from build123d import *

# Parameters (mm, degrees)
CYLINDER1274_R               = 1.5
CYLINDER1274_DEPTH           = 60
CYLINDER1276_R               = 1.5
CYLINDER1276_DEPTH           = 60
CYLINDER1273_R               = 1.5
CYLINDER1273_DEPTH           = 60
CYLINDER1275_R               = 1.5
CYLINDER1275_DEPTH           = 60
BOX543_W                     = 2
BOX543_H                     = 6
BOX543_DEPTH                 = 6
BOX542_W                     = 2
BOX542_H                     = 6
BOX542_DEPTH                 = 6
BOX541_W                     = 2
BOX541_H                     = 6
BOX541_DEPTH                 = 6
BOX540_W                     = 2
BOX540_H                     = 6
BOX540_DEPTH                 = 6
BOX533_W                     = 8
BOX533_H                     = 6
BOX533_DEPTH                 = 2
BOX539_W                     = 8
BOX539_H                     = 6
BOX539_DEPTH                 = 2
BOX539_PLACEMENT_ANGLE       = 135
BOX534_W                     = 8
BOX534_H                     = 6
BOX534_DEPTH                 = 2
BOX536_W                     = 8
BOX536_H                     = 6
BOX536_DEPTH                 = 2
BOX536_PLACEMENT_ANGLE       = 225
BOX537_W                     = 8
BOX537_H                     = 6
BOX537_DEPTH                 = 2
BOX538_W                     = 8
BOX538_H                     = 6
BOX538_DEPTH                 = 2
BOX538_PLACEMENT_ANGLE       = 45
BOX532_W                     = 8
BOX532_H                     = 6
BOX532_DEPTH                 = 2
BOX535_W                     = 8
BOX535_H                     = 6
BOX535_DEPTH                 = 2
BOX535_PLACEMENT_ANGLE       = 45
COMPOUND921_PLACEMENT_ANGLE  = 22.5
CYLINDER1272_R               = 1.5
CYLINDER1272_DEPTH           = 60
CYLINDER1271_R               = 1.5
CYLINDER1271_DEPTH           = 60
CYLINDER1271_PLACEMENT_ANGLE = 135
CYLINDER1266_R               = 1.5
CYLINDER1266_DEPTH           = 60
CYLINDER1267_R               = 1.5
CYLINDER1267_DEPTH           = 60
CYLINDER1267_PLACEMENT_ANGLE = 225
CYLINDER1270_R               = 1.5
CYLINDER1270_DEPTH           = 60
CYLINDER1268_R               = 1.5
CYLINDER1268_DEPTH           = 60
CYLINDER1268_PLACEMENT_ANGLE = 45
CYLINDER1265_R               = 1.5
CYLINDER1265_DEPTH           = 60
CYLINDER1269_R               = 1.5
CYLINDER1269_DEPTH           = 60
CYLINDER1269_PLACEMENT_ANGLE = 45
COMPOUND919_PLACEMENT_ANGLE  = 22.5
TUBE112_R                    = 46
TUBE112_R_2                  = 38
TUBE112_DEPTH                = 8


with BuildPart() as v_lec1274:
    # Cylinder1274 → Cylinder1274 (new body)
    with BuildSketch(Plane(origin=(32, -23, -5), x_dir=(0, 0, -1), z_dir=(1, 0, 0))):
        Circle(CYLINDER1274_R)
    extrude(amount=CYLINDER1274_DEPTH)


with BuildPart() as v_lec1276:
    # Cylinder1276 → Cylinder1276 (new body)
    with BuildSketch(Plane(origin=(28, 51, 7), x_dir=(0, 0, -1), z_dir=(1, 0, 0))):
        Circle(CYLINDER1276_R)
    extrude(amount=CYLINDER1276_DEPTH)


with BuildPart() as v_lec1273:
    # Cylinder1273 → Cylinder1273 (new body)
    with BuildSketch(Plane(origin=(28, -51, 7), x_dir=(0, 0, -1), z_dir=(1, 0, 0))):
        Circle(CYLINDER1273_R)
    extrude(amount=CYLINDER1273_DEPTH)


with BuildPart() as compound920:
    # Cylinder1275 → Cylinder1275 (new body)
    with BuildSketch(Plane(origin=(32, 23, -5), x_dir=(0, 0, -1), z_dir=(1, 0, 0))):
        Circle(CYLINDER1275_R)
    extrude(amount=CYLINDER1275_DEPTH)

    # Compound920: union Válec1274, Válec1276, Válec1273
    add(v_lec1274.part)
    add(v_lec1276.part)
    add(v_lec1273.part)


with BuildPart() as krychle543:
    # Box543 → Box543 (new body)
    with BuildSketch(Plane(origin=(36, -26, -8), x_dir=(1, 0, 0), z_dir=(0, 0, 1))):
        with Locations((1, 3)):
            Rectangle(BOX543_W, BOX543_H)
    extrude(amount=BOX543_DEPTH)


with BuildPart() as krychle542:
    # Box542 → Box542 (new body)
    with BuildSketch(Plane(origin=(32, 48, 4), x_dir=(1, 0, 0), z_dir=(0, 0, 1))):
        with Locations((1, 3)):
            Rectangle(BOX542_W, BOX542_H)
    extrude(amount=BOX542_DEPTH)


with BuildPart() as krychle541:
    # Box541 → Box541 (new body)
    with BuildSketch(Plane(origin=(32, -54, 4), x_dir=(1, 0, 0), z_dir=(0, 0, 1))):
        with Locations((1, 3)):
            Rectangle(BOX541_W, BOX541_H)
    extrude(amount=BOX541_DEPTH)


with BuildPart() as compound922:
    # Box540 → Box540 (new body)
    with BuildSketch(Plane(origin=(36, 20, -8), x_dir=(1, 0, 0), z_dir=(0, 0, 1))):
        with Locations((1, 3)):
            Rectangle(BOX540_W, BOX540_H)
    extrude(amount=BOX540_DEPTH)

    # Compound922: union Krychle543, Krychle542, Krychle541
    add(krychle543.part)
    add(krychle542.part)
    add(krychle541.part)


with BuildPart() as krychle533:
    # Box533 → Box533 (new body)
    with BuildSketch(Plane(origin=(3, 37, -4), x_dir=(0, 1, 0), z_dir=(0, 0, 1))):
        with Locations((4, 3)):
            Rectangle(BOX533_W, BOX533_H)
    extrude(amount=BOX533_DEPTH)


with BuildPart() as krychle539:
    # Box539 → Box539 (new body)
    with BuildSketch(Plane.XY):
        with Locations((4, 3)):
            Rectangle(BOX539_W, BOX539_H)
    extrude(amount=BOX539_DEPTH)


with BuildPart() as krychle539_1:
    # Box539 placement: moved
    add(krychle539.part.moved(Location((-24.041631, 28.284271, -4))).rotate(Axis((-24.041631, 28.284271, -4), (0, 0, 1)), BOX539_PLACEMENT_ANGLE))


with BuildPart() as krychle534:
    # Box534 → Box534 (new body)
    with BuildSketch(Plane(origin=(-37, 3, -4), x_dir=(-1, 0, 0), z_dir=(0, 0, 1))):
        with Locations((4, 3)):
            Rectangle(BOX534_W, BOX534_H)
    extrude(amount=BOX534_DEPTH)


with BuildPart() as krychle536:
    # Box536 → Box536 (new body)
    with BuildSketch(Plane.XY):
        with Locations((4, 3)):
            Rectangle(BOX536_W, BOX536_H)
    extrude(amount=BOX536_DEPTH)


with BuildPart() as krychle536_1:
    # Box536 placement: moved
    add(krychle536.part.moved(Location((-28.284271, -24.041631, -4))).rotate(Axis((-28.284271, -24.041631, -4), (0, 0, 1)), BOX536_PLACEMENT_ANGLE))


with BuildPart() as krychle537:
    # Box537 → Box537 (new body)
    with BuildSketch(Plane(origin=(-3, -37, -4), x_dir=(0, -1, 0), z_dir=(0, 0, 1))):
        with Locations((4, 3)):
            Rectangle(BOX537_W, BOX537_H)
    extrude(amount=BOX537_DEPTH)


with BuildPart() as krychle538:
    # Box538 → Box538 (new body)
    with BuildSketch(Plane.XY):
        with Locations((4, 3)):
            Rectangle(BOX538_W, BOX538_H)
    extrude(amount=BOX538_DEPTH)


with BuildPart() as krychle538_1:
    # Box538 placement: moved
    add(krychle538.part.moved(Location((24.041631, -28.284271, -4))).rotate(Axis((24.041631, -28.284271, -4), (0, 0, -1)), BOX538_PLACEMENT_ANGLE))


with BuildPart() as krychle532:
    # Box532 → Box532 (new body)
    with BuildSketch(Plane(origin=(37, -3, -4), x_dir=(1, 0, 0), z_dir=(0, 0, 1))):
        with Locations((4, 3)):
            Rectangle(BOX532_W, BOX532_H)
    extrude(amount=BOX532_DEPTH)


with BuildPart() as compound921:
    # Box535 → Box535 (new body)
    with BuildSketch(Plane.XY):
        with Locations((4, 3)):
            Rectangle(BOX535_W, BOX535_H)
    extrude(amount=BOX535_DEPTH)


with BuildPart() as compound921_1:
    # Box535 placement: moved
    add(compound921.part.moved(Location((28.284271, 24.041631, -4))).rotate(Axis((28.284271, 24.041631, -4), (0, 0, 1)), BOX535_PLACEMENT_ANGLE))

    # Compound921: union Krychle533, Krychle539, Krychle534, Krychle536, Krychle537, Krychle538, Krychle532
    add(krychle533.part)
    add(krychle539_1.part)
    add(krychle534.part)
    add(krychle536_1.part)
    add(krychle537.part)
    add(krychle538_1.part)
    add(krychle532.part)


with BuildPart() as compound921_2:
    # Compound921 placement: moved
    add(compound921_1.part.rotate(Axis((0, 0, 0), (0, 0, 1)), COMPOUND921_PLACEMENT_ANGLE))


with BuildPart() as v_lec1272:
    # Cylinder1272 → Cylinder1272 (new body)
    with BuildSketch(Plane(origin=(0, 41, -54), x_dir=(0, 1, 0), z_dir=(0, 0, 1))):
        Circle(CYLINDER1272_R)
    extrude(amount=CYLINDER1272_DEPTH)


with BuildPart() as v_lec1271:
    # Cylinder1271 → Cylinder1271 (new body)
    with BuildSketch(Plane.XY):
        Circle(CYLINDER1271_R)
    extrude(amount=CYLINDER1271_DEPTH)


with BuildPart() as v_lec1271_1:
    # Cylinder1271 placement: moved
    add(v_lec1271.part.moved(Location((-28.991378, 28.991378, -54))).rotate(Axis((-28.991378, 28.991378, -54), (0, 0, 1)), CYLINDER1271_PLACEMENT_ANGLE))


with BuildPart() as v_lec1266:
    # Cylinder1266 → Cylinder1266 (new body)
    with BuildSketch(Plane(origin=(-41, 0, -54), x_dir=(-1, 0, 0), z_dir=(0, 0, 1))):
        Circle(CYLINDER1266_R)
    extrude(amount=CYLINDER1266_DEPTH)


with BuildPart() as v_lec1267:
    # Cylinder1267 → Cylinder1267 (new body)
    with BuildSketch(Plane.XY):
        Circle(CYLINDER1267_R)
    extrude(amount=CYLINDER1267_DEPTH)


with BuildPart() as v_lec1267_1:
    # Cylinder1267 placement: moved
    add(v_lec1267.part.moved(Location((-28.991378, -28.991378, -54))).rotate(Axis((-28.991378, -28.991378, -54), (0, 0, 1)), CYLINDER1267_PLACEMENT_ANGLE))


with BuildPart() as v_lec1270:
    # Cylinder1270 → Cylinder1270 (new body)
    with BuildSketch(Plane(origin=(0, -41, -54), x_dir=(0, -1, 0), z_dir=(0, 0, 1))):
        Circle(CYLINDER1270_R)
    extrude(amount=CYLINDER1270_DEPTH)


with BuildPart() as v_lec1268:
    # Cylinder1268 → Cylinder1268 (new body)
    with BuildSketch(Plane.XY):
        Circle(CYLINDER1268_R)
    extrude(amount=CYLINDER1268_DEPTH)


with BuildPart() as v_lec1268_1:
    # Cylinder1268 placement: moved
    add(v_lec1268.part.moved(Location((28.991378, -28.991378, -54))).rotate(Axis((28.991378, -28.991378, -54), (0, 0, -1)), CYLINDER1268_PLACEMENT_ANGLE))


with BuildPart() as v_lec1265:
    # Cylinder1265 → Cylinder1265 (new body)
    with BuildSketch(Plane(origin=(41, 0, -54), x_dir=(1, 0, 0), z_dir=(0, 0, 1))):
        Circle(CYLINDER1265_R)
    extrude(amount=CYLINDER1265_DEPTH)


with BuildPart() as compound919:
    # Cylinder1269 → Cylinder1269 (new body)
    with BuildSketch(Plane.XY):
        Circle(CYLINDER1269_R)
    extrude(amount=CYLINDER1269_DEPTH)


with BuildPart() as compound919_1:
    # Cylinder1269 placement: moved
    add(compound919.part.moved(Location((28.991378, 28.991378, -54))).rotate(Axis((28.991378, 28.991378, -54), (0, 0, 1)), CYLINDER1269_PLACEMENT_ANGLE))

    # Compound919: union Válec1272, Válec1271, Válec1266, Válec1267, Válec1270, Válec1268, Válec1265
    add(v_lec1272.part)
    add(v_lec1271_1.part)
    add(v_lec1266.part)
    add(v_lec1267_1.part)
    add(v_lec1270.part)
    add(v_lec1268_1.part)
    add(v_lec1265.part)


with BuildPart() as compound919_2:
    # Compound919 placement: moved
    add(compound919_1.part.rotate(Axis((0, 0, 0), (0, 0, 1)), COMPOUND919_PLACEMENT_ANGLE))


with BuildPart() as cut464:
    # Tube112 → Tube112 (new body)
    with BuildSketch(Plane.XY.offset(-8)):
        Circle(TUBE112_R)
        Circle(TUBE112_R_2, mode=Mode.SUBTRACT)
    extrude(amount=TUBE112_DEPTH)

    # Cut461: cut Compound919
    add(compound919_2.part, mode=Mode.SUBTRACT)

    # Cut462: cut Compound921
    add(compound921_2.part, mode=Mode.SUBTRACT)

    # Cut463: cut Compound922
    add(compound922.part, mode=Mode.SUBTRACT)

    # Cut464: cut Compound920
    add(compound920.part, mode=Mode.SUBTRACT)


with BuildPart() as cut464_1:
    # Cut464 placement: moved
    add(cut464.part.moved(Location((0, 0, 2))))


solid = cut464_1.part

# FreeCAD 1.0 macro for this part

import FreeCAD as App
import Part
import Sketcher


def add_polygon(sketch, points):
    """Adds a closed chain of lines whose ends are joined by coincident constraints."""
    first, n = sketch.GeometryCount, len(points)
    for a, b in zip(points, points[1:] + points[:1]):
        sketch.addGeometry(Part.LineSegment(App.Vector(*a, 0), App.Vector(*b, 0)), False)
    for i in range(n):
        sketch.addConstraint(Sketcher.Constraint("Coincident", first + i, 2, first + (i + 1) % n, 1))

doc = App.newDocument("Part")
params = doc.addObject("Spreadsheet::Sheet", "Params")
for row, (alias, value) in enumerate([
    ("sketch1_diameter", "3 mm"),
    ("pad1_length", "60 mm"),
    ("sketch2_diameter", "3 mm"),
    ("pad2_length", "60 mm"),
    ("sketch3_diameter", "3 mm"),
    ("pad3_length", "60 mm"),
    ("sketch4_diameter", "3 mm"),
    ("pad4_length", "60 mm"),
    ("sketch5_width", "2 mm"),
    ("sketch5_height", "6 mm"),
    ("pad5_length", "6 mm"),
    ("sketch6_width", "2 mm"),
    ("sketch6_height", "6 mm"),
    ("pad6_length", "6 mm"),
    ("sketch7_width", "2 mm"),
    ("sketch7_height", "6 mm"),
    ("pad7_length", "6 mm"),
    ("sketch8_width", "2 mm"),
    ("sketch8_height", "6 mm"),
    ("pad8_length", "6 mm"),
    ("sketch9_width", "6 mm"),
    ("sketch9_height", "8 mm"),
    ("pad9_length", "2 mm"),
    ("sketch10_width", "8 mm"),
    ("sketch10_height", "6 mm"),
    ("pad10_length", "2 mm"),
    ("sketch11_width", "8 mm"),
    ("sketch11_height", "6 mm"),
    ("pad11_length", "2 mm"),
    ("sketch12_width", "8 mm"),
    ("sketch12_height", "6 mm"),
    ("pad12_length", "2 mm"),
    ("sketch13_width", "6 mm"),
    ("sketch13_height", "8 mm"),
    ("pad13_length", "2 mm"),
    ("sketch14_width", "8 mm"),
    ("sketch14_height", "6 mm"),
    ("pad14_length", "2 mm"),
    ("sketch15_width", "8 mm"),
    ("sketch15_height", "6 mm"),
    ("pad15_length", "2 mm"),
    ("sketch16_width", "8 mm"),
    ("sketch16_height", "6 mm"),
    ("pad16_length", "2 mm"),
    ("sketch17_diameter", "3 mm"),
    ("pad17_length", "60 mm"),
    ("sketch18_diameter", "3 mm"),
    ("pad18_length", "60 mm"),
    ("sketch19_diameter", "3 mm"),
    ("pad19_length", "60 mm"),
    ("sketch20_diameter", "3 mm"),
    ("pad20_length", "60 mm"),
    ("sketch21_diameter", "3 mm"),
    ("pad21_length", "60 mm"),
    ("sketch22_diameter", "3 mm"),
    ("pad22_length", "60 mm"),
    ("sketch23_diameter", "3 mm"),
    ("pad23_length", "60 mm"),
    ("sketch24_diameter", "3 mm"),
    ("pad24_length", "60 mm"),
    ("sketch25_diameter", "92 mm"),
    ("sketch25_diameter2", "76 mm"),
    ("pad25_length", "8 mm"),
], start=1):
    params.set(f"A{row}", alias)
    params.set(f"B{row}", "=" + value)
    params.setAlias(f"B{row}", alias)

body = doc.addObject("PartDesign::Body", "Body")

# Sketch on YZ plane
sketch1 = body.newObject("Sketcher::SketchObject", "Sketch")
sketch1.AttachmentSupport = (doc.getObject("YZ_Plane"), [""])
sketch1.MapMode = "FlatFace"
sketch1.AttachmentOffset = App.Placement(App.Vector(0, 0, 32), App.Rotation())
sketch1.addGeometry(Part.Circle(App.Vector(-23, -5, 0), App.Vector(0, 0, 1), 1.5), False)
sketch1.addConstraint(Sketcher.Constraint("Diameter", 0, 3.0))
sketch1.addConstraint(Sketcher.Constraint("DistanceX", 0, 3, -1, 1, 23.0))
sketch1.addConstraint(Sketcher.Constraint("DistanceY", 0, 3, -1, 1, 5.0))
sketch1.setExpression("Constraints[0]", "Params.sketch1_diameter")
pad1 = body.newObject("PartDesign::Pad", "Pad")
pad1.Profile = sketch1
pad1.setExpression("Length", "Params.pad1_length")
body2 = doc.addObject("PartDesign::Body", "Body001")

# Sketch on YZ plane
sketch2 = body2.newObject("Sketcher::SketchObject", "Sketch001")
sketch2.AttachmentSupport = (doc.getObject("YZ_Plane001"), [""])
sketch2.MapMode = "FlatFace"
sketch2.AttachmentOffset = App.Placement(App.Vector(0, 0, 28), App.Rotation())
sketch2.addGeometry(Part.Circle(App.Vector(51, 7, 0), App.Vector(0, 0, 1), 1.5), False)
sketch2.addConstraint(Sketcher.Constraint("Diameter", 0, 3.0))
sketch2.addConstraint(Sketcher.Constraint("DistanceX", -1, 1, 0, 3, 51.0))
sketch2.addConstraint(Sketcher.Constraint("DistanceY", -1, 1, 0, 3, 7.0))
sketch2.setExpression("Constraints[0]", "Params.sketch2_diameter")
pad2 = body2.newObject("PartDesign::Pad", "Pad001")
pad2.Profile = sketch2
pad2.setExpression("Length", "Params.pad2_length")
body3 = doc.addObject("PartDesign::Body", "Body002")

# Sketch on YZ plane
sketch3 = body3.newObject("Sketcher::SketchObject", "Sketch002")
sketch3.AttachmentSupport = (doc.getObject("YZ_Plane002"), [""])
sketch3.MapMode = "FlatFace"
sketch3.AttachmentOffset = App.Placement(App.Vector(0, 0, 28), App.Rotation())
sketch3.addGeometry(Part.Circle(App.Vector(-51, 7, 0), App.Vector(0, 0, 1), 1.5), False)
sketch3.addConstraint(Sketcher.Constraint("Diameter", 0, 3.0))
sketch3.addConstraint(Sketcher.Constraint("DistanceX", 0, 3, -1, 1, 51.0))
sketch3.addConstraint(Sketcher.Constraint("DistanceY", -1, 1, 0, 3, 7.0))
sketch3.setExpression("Constraints[0]", "Params.sketch3_diameter")
pad3 = body3.newObject("PartDesign::Pad", "Pad002")
pad3.Profile = sketch3
pad3.setExpression("Length", "Params.pad3_length")
body4 = doc.addObject("PartDesign::Body", "Body003")
body4.AllowCompound = True

# Sketch on YZ plane
sketch4 = body4.newObject("Sketcher::SketchObject", "Sketch003")
sketch4.AttachmentSupport = (doc.getObject("YZ_Plane003"), [""])
sketch4.MapMode = "FlatFace"
sketch4.AttachmentOffset = App.Placement(App.Vector(0, 0, 32), App.Rotation())
sketch4.addGeometry(Part.Circle(App.Vector(23, -5, 0), App.Vector(0, 0, 1), 1.5), False)
sketch4.addConstraint(Sketcher.Constraint("Diameter", 0, 3.0))
sketch4.addConstraint(Sketcher.Constraint("DistanceX", -1, 1, 0, 3, 23.0))
sketch4.addConstraint(Sketcher.Constraint("DistanceY", 0, 3, -1, 1, 5.0))
sketch4.setExpression("Constraints[0]", "Params.sketch4_diameter")
pad4 = body4.newObject("PartDesign::Pad", "Pad003")
pad4.Profile = sketch4
pad4.setExpression("Length", "Params.pad4_length")
doc.recompute()

boolean = body4.newObject("PartDesign::Boolean", "Boolean")
boolean.Type = "Fuse"
boolean.addObjects([body])
doc.recompute()

boolean2 = body4.newObject("PartDesign::Boolean", "Boolean001")
boolean2.Type = "Fuse"
boolean2.addObjects([body2])
doc.recompute()

boolean3 = body4.newObject("PartDesign::Boolean", "Boolean002")
boolean3.Type = "Fuse"
boolean3.addObjects([body3])
body5 = doc.addObject("PartDesign::Body", "Body004")

# Sketch on XY plane
sketch5 = body5.newObject("Sketcher::SketchObject", "Sketch004")
sketch5.AttachmentSupport = (doc.getObject("XY_Plane004"), [""])
sketch5.MapMode = "FlatFace"
sketch5.AttachmentOffset = App.Placement(App.Vector(0, 0, -8), App.Rotation())
add_polygon(sketch5, [(36, -20), (36, -26), (38, -26), (38, -20)])  # lines 0-3
sketch5.addConstraint(Sketcher.Constraint("Vertical", 0))
sketch5.addConstraint(Sketcher.Constraint("Horizontal", 1))
sketch5.addConstraint(Sketcher.Constraint("Vertical", 2))
sketch5.addConstraint(Sketcher.Constraint("Horizontal", 3))
sketch5.addConstraint(Sketcher.Constraint("DistanceX", 1, 1, 1, 2, 2.0))
sketch5.addConstraint(Sketcher.Constraint("DistanceY", 0, 2, 0, 1, 6.0))
sketch5.addConstraint(Sketcher.Constraint("DistanceX", -1, 1, 0, 2, 36.0))
sketch5.addConstraint(Sketcher.Constraint("DistanceY", 0, 2, -1, 1, 26.0))
sketch5.setExpression("Constraints[8]", "Params.sketch5_width")
sketch5.setExpression("Constraints[9]", "Params.sketch5_height")
pad5 = body5.newObject("PartDesign::Pad", "Pad004")
pad5.Profile = sketch5
pad5.setExpression("Length", "Params.pad5_length")
body6 = doc.addObject("PartDesign::Body", "Body005")

# Sketch on XY plane
sketch6 = body6.newObject("Sketcher::SketchObject", "Sketch005")
sketch6.AttachmentSupport = (doc.getObject("XY_Plane005"), [""])
sketch6.MapMode = "FlatFace"
sketch6.AttachmentOffset = App.Placement(App.Vector(0, 0, 4), App.Rotation())
add_polygon(sketch6, [(32, 54), (32, 48), (34, 48), (34, 54)])  # lines 0-3
sketch6.addConstraint(Sketcher.Constraint("Vertical", 0))
sketch6.addConstraint(Sketcher.Constraint("Horizontal", 1))
sketch6.addConstraint(Sketcher.Constraint("Vertical", 2))
sketch6.addConstraint(Sketcher.Constraint("Horizontal", 3))
sketch6.addConstraint(Sketcher.Constraint("DistanceX", 1, 1, 1, 2, 2.0))
sketch6.addConstraint(Sketcher.Constraint("DistanceY", 0, 2, 0, 1, 6.0))
sketch6.addConstraint(Sketcher.Constraint("DistanceX", -1, 1, 0, 2, 32.0))
sketch6.addConstraint(Sketcher.Constraint("DistanceY", -1, 1, 0, 2, 48.0))
sketch6.setExpression("Constraints[8]", "Params.sketch6_width")
sketch6.setExpression("Constraints[9]", "Params.sketch6_height")
pad6 = body6.newObject("PartDesign::Pad", "Pad005")
pad6.Profile = sketch6
pad6.setExpression("Length", "Params.pad6_length")
body7 = doc.addObject("PartDesign::Body", "Body006")

# Sketch on XY plane
sketch7 = body7.newObject("Sketcher::SketchObject", "Sketch006")
sketch7.AttachmentSupport = (doc.getObject("XY_Plane006"), [""])
sketch7.MapMode = "FlatFace"
sketch7.AttachmentOffset = App.Placement(App.Vector(0, 0, 4), App.Rotation())
add_polygon(sketch7, [(32, -48), (32, -54), (34, -54), (34, -48)])  # lines 0-3
sketch7.addConstraint(Sketcher.Constraint("Vertical", 0))
sketch7.addConstraint(Sketcher.Constraint("Horizontal", 1))
sketch7.addConstraint(Sketcher.Constraint("Vertical", 2))
sketch7.addConstraint(Sketcher.Constraint("Horizontal", 3))
sketch7.addConstraint(Sketcher.Constraint("DistanceX", 1, 1, 1, 2, 2.0))
sketch7.addConstraint(Sketcher.Constraint("DistanceY", 0, 2, 0, 1, 6.0))
sketch7.addConstraint(Sketcher.Constraint("DistanceX", -1, 1, 0, 2, 32.0))
sketch7.addConstraint(Sketcher.Constraint("DistanceY", 0, 2, -1, 1, 54.0))
sketch7.setExpression("Constraints[8]", "Params.sketch7_width")
sketch7.setExpression("Constraints[9]", "Params.sketch7_height")
pad7 = body7.newObject("PartDesign::Pad", "Pad006")
pad7.Profile = sketch7
pad7.setExpression("Length", "Params.pad7_length")
body8 = doc.addObject("PartDesign::Body", "Body007")
body8.AllowCompound = True

# Sketch on XY plane
sketch8 = body8.newObject("Sketcher::SketchObject", "Sketch007")
sketch8.AttachmentSupport = (doc.getObject("XY_Plane007"), [""])
sketch8.MapMode = "FlatFace"
sketch8.AttachmentOffset = App.Placement(App.Vector(0, 0, -8), App.Rotation())
add_polygon(sketch8, [(36, 26), (36, 20), (38, 20), (38, 26)])  # lines 0-3
sketch8.addConstraint(Sketcher.Constraint("Vertical", 0))
sketch8.addConstraint(Sketcher.Constraint("Horizontal", 1))
sketch8.addConstraint(Sketcher.Constraint("Vertical", 2))
sketch8.addConstraint(Sketcher.Constraint("Horizontal", 3))
sketch8.addConstraint(Sketcher.Constraint("DistanceX", 1, 1, 1, 2, 2.0))
sketch8.addConstraint(Sketcher.Constraint("DistanceY", 0, 2, 0, 1, 6.0))
sketch8.addConstraint(Sketcher.Constraint("DistanceX", -1, 1, 0, 2, 36.0))
sketch8.addConstraint(Sketcher.Constraint("DistanceY", -1, 1, 0, 2, 20.0))
sketch8.setExpression("Constraints[8]", "Params.sketch8_width")
sketch8.setExpression("Constraints[9]", "Params.sketch8_height")
pad8 = body8.newObject("PartDesign::Pad", "Pad007")
pad8.Profile = sketch8
pad8.setExpression("Length", "Params.pad8_length")
doc.recompute()

boolean4 = body8.newObject("PartDesign::Boolean", "Boolean003")
boolean4.Type = "Fuse"
boolean4.addObjects([body5])
doc.recompute()

boolean5 = body8.newObject("PartDesign::Boolean", "Boolean004")
boolean5.Type = "Fuse"
boolean5.addObjects([body6])
doc.recompute()

boolean6 = body8.newObject("PartDesign::Boolean", "Boolean005")
boolean6.Type = "Fuse"
boolean6.addObjects([body7])
body9 = doc.addObject("PartDesign::Body", "Body008")

# Sketch on XY plane
sketch9 = body9.newObject("Sketcher::SketchObject", "Sketch008")
sketch9.AttachmentSupport = (doc.getObject("XY_Plane008"), [""])
sketch9.MapMode = "FlatFace"
sketch9.AttachmentOffset = App.Placement(App.Vector(0, 0, -4), App.Rotation())
add_polygon(sketch9, [(-3, 37), (3, 37), (3, 45), (-3, 45)])  # lines 0-3
sketch9.addConstraint(Sketcher.Constraint("Horizontal", 0))
sketch9.addConstraint(Sketcher.Constraint("Vertical", 1))
sketch9.addConstraint(Sketcher.Constraint("Horizontal", 2))
sketch9.addConstraint(Sketcher.Constraint("Vertical", 3))
sketch9.addConstraint(Sketcher.Constraint("DistanceX", 0, 1, 0, 2, 6.0))
sketch9.addConstraint(Sketcher.Constraint("DistanceY", 1, 1, 1, 2, 8.0))
sketch9.addConstraint(Sketcher.Constraint("DistanceX", -1, 1, 0, 2, 3.0))
sketch9.addConstraint(Sketcher.Constraint("DistanceY", -1, 1, 0, 2, 37.0))
sketch9.setExpression("Constraints[8]", "Params.sketch9_width")
sketch9.setExpression("Constraints[9]", "Params.sketch9_height")
pad9 = body9.newObject("PartDesign::Pad", "Pad008")
pad9.Profile = sketch9
pad9.setExpression("Length", "Params.pad9_length")
body10 = doc.addObject("PartDesign::Body", "Body009")

# Sketch on XY plane
sketch10 = body10.newObject("Sketcher::SketchObject", "Sketch009")
sketch10.AttachmentSupport = (doc.getObject("XY_Plane009"), [""])
sketch10.MapMode = "FlatFace"
add_polygon(sketch10, [(0, 6), (0, 0), (8, 0), (8, 6)])  # lines 0-3
sketch10.addConstraint(Sketcher.Constraint("Vertical", 0))
sketch10.addConstraint(Sketcher.Constraint("Horizontal", 1))
sketch10.addConstraint(Sketcher.Constraint("Vertical", 2))
sketch10.addConstraint(Sketcher.Constraint("Horizontal", 3))
sketch10.addConstraint(Sketcher.Constraint("Coincident", 0, 2, -1, 1))
sketch10.addConstraint(Sketcher.Constraint("DistanceX", 1, 1, 1, 2, 8.0))
sketch10.addConstraint(Sketcher.Constraint("DistanceY", 0, 2, 0, 1, 6.0))
sketch10.setExpression("Constraints[9]", "Params.sketch10_width")
sketch10.setExpression("Constraints[10]", "Params.sketch10_height")
pad10 = body10.newObject("PartDesign::Pad", "Pad009")
pad10.Profile = sketch10
pad10.setExpression("Length", "Params.pad10_length")
body11 = doc.addObject("PartDesign::Body", "Body010")
doc.recompute()

body10.Placement = App.Placement(App.Vector(-24.041631, 28.284271, -4), App.Rotation(App.Vector(0, 0, 1), 135))
boolean7 = body11.newObject("PartDesign::Boolean", "Boolean006")
boolean7.Type = "Fuse"
boolean7.addObjects([body10])
body12 = doc.addObject("PartDesign::Body", "Body011")

# Sketch on XY plane
sketch11 = body12.newObject("Sketcher::SketchObject", "Sketch010")
sketch11.AttachmentSupport = (doc.getObject("XY_Plane011"), [""])
sketch11.MapMode = "FlatFace"
sketch11.AttachmentOffset = App.Placement(App.Vector(0, 0, -4), App.Rotation())
add_polygon(sketch11, [(-37, -3), (-37, 3), (-45, 3), (-45, -3)])  # lines 0-3
sketch11.addConstraint(Sketcher.Constraint("Vertical", 0))
sketch11.addConstraint(Sketcher.Constraint("Horizontal", 1))
sketch11.addConstraint(Sketcher.Constraint("Vertical", 2))
sketch11.addConstraint(Sketcher.Constraint("Horizontal", 3))
sketch11.addConstraint(Sketcher.Constraint("DistanceX", 1, 2, 1, 1, 8.0))
sketch11.addConstraint(Sketcher.Constraint("DistanceY", 0, 1, 0, 2, 6.0))
sketch11.addConstraint(Sketcher.Constraint("DistanceX", 0, 2, -1, 1, 37.0))
sketch11.addConstraint(Sketcher.Constraint("DistanceY", -1, 1, 0, 2, 3.0))
sketch11.setExpression("Constraints[8]", "Params.sketch11_width")
sketch11.setExpression("Constraints[9]", "Params.sketch11_height")
pad11 = body12.newObject("PartDesign::Pad", "Pad010")
pad11.Profile = sketch11
pad11.setExpression("Length", "Params.pad11_length")
body13 = doc.addObject("PartDesign::Body", "Body012")

# Sketch on XY plane
sketch12 = body13.newObject("Sketcher::SketchObject", "Sketch011")
sketch12.AttachmentSupport = (doc.getObject("XY_Plane012"), [""])
sketch12.MapMode = "FlatFace"
add_polygon(sketch12, [(0, 6), (0, 0), (8, 0), (8, 6)])  # lines 0-3
sketch12.addConstraint(Sketcher.Constraint("Vertical", 0))
sketch12.addConstraint(Sketcher.Constraint("Horizontal", 1))
sketch12.addConstraint(Sketcher.Constraint("Vertical", 2))
sketch12.addConstraint(Sketcher.Constraint("Horizontal", 3))
sketch12.addConstraint(Sketcher.Constraint("Coincident", 0, 2, -1, 1))
sketch12.addConstraint(Sketcher.Constraint("DistanceX", 1, 1, 1, 2, 8.0))
sketch12.addConstraint(Sketcher.Constraint("DistanceY", 0, 2, 0, 1, 6.0))
sketch12.setExpression("Constraints[9]", "Params.sketch12_width")
sketch12.setExpression("Constraints[10]", "Params.sketch12_height")
pad12 = body13.newObject("PartDesign::Pad", "Pad011")
pad12.Profile = sketch12
pad12.setExpression("Length", "Params.pad12_length")
body14 = doc.addObject("PartDesign::Body", "Body013")
doc.recompute()

body13.Placement = App.Placement(App.Vector(-28.284271, -24.041631, -4), App.Rotation(App.Vector(0, 0, 1), 225))
boolean8 = body14.newObject("PartDesign::Boolean", "Boolean007")
boolean8.Type = "Fuse"
boolean8.addObjects([body13])
body15 = doc.addObject("PartDesign::Body", "Body014")

# Sketch on XY plane
sketch13 = body15.newObject("Sketcher::SketchObject", "Sketch012")
sketch13.AttachmentSupport = (doc.getObject("XY_Plane014"), [""])
sketch13.MapMode = "FlatFace"
sketch13.AttachmentOffset = App.Placement(App.Vector(0, 0, -4), App.Rotation())
add_polygon(sketch13, [(3, -37), (-3, -37), (-3, -45), (3, -45)])  # lines 0-3
sketch13.addConstraint(Sketcher.Constraint("Horizontal", 0))
sketch13.addConstraint(Sketcher.Constraint("Vertical", 1))
sketch13.addConstraint(Sketcher.Constraint("Horizontal", 2))
sketch13.addConstraint(Sketcher.Constraint("Vertical", 3))
sketch13.addConstraint(Sketcher.Constraint("DistanceX", 0, 2, 0, 1, 6.0))
sketch13.addConstraint(Sketcher.Constraint("DistanceY", 1, 2, 1, 1, 8.0))
sketch13.addConstraint(Sketcher.Constraint("DistanceX", 0, 2, -1, 1, 3.0))
sketch13.addConstraint(Sketcher.Constraint("DistanceY", 0, 2, -1, 1, 37.0))
sketch13.setExpression("Constraints[8]", "Params.sketch13_width")
sketch13.setExpression("Constraints[9]", "Params.sketch13_height")
pad13 = body15.newObject("PartDesign::Pad", "Pad012")
pad13.Profile = sketch13
pad13.setExpression("Length", "Params.pad13_length")
body16 = doc.addObject("PartDesign::Body", "Body015")

# Sketch on XY plane
sketch14 = body16.newObject("Sketcher::SketchObject", "Sketch013")
sketch14.AttachmentSupport = (doc.getObject("XY_Plane015"), [""])
sketch14.MapMode = "FlatFace"
add_polygon(sketch14, [(0, 6), (0, 0), (8, 0), (8, 6)])  # lines 0-3
sketch14.addConstraint(Sketcher.Constraint("Vertical", 0))
sketch14.addConstraint(Sketcher.Constraint("Horizontal", 1))
sketch14.addConstraint(Sketcher.Constraint("Vertical", 2))
sketch14.addConstraint(Sketcher.Constraint("Horizontal", 3))
sketch14.addConstraint(Sketcher.Constraint("Coincident", 0, 2, -1, 1))
sketch14.addConstraint(Sketcher.Constraint("DistanceX", 1, 1, 1, 2, 8.0))
sketch14.addConstraint(Sketcher.Constraint("DistanceY", 0, 2, 0, 1, 6.0))
sketch14.setExpression("Constraints[9]", "Params.sketch14_width")
sketch14.setExpression("Constraints[10]", "Params.sketch14_height")
pad14 = body16.newObject("PartDesign::Pad", "Pad013")
pad14.Profile = sketch14
pad14.setExpression("Length", "Params.pad14_length")
body17 = doc.addObject("PartDesign::Body", "Body016")
doc.recompute()

body16.Placement = App.Placement(App.Vector(24.041631, -28.284271, -4), App.Rotation(App.Vector(0, 0, -1), 45))
boolean9 = body17.newObject("PartDesign::Boolean", "Boolean008")
boolean9.Type = "Fuse"
boolean9.addObjects([body16])
body18 = doc.addObject("PartDesign::Body", "Body017")

# Sketch on XY plane
sketch15 = body18.newObject("Sketcher::SketchObject", "Sketch014")
sketch15.AttachmentSupport = (doc.getObject("XY_Plane017"), [""])
sketch15.MapMode = "FlatFace"
sketch15.AttachmentOffset = App.Placement(App.Vector(0, 0, -4), App.Rotation())
add_polygon(sketch15, [(37, 3), (37, -3), (45, -3), (45, 3)])  # lines 0-3
sketch15.addConstraint(Sketcher.Constraint("Vertical", 0))
sketch15.addConstraint(Sketcher.Constraint("Horizontal", 1))
sketch15.addConstraint(Sketcher.Constraint("Vertical", 2))
sketch15.addConstraint(Sketcher.Constraint("Horizontal", 3))
sketch15.addConstraint(Sketcher.Constraint("DistanceX", 1, 1, 1, 2, 8.0))
sketch15.addConstraint(Sketcher.Constraint("DistanceY", 0, 2, 0, 1, 6.0))
sketch15.addConstraint(Sketcher.Constraint("DistanceX", -1, 1, 0, 2, 37.0))
sketch15.addConstraint(Sketcher.Constraint("DistanceY", 0, 2, -1, 1, 3.0))
sketch15.setExpression("Constraints[8]", "Params.sketch15_width")
sketch15.setExpression("Constraints[9]", "Params.sketch15_height")
pad15 = body18.newObject("PartDesign::Pad", "Pad014")
pad15.Profile = sketch15
pad15.setExpression("Length", "Params.pad15_length")
body19 = doc.addObject("PartDesign::Body", "Body018")

# Sketch on XY plane
sketch16 = body19.newObject("Sketcher::SketchObject", "Sketch015")
sketch16.AttachmentSupport = (doc.getObject("XY_Plane018"), [""])
sketch16.MapMode = "FlatFace"
add_polygon(sketch16, [(0, 6), (0, 0), (8, 0), (8, 6)])  # lines 0-3
sketch16.addConstraint(Sketcher.Constraint("Vertical", 0))
sketch16.addConstraint(Sketcher.Constraint("Horizontal", 1))
sketch16.addConstraint(Sketcher.Constraint("Vertical", 2))
sketch16.addConstraint(Sketcher.Constraint("Horizontal", 3))
sketch16.addConstraint(Sketcher.Constraint("Coincident", 0, 2, -1, 1))
sketch16.addConstraint(Sketcher.Constraint("DistanceX", 1, 1, 1, 2, 8.0))
sketch16.addConstraint(Sketcher.Constraint("DistanceY", 0, 2, 0, 1, 6.0))
sketch16.setExpression("Constraints[9]", "Params.sketch16_width")
sketch16.setExpression("Constraints[10]", "Params.sketch16_height")
pad16 = body19.newObject("PartDesign::Pad", "Pad015")
pad16.Profile = sketch16
pad16.setExpression("Length", "Params.pad16_length")
body20 = doc.addObject("PartDesign::Body", "Body019")
body20.AllowCompound = True
doc.recompute()

body19.Placement = App.Placement(App.Vector(28.284271, 24.041631, -4), App.Rotation(App.Vector(0, 0, 1), 45))
boolean10 = body20.newObject("PartDesign::Boolean", "Boolean009")
boolean10.Type = "Fuse"
boolean10.addObjects([body19])
doc.recompute()

boolean11 = body20.newObject("PartDesign::Boolean", "Boolean010")
boolean11.Type = "Fuse"
boolean11.addObjects([body9])
doc.recompute()

boolean12 = body20.newObject("PartDesign::Boolean", "Boolean011")
boolean12.Type = "Fuse"
boolean12.addObjects([body11])
doc.recompute()

boolean13 = body20.newObject("PartDesign::Boolean", "Boolean012")
boolean13.Type = "Fuse"
boolean13.addObjects([body12])
doc.recompute()

boolean14 = body20.newObject("PartDesign::Boolean", "Boolean013")
boolean14.Type = "Fuse"
boolean14.addObjects([body14])
doc.recompute()

boolean15 = body20.newObject("PartDesign::Boolean", "Boolean014")
boolean15.Type = "Fuse"
boolean15.addObjects([body15])
doc.recompute()

boolean16 = body20.newObject("PartDesign::Boolean", "Boolean015")
boolean16.Type = "Fuse"
boolean16.addObjects([body17])
doc.recompute()

boolean17 = body20.newObject("PartDesign::Boolean", "Boolean016")
boolean17.Type = "Fuse"
boolean17.addObjects([body18])
body21 = doc.addObject("PartDesign::Body", "Body020")
body21.AllowCompound = True
doc.recompute()

body20.Placement = App.Placement(App.Vector(0, 0, 0), App.Rotation(App.Vector(0, 0, 1), 22.5))
boolean18 = body21.newObject("PartDesign::Boolean", "Boolean017")
boolean18.Type = "Fuse"
boolean18.addObjects([body20])
body22 = doc.addObject("PartDesign::Body", "Body021")

# Sketch on XY plane
sketch17 = body22.newObject("Sketcher::SketchObject", "Sketch016")
sketch17.AttachmentSupport = (doc.getObject("XY_Plane021"), [""])
sketch17.MapMode = "FlatFace"
sketch17.AttachmentOffset = App.Placement(App.Vector(0, 0, -54), App.Rotation())
sketch17.addGeometry(Part.Circle(App.Vector(0, 41, 0), App.Vector(0, 0, 1), 1.5), False)
sketch17.addConstraint(Sketcher.Constraint("PointOnObject", 0, 3, -2))
sketch17.addConstraint(Sketcher.Constraint("Diameter", 0, 3.0))
sketch17.addConstraint(Sketcher.Constraint("DistanceY", -1, 1, 0, 3, 41.0))
sketch17.setExpression("Constraints[1]", "Params.sketch17_diameter")
pad17 = body22.newObject("PartDesign::Pad", "Pad016")
pad17.Profile = sketch17
pad17.setExpression("Length", "Params.pad17_length")
body23 = doc.addObject("PartDesign::Body", "Body022")

# Sketch on XY plane
sketch18 = body23.newObject("Sketcher::SketchObject", "Sketch017")
sketch18.AttachmentSupport = (doc.getObject("XY_Plane022"), [""])
sketch18.MapMode = "FlatFace"
sketch18.addGeometry(Part.Circle(App.Vector(0, 0, 0), App.Vector(0, 0, 1), 1.5), False)
sketch18.addConstraint(Sketcher.Constraint("Coincident", 0, 3, -1, 1))
sketch18.addConstraint(Sketcher.Constraint("Diameter", 0, 3.0))
sketch18.setExpression("Constraints[1]", "Params.sketch18_diameter")
pad18 = body23.newObject("PartDesign::Pad", "Pad017")
pad18.Profile = sketch18
pad18.setExpression("Length", "Params.pad18_length")
body24 = doc.addObject("PartDesign::Body", "Body023")
doc.recompute()

body23.Placement = App.Placement(App.Vector(-28.991378, 28.991378, -54), App.Rotation(App.Vector(0, 0, 1), 135))
boolean19 = body24.newObject("PartDesign::Boolean", "Boolean018")
boolean19.Type = "Fuse"
boolean19.addObjects([body23])
body25 = doc.addObject("PartDesign::Body", "Body024")

# Sketch on XY plane
sketch19 = body25.newObject("Sketcher::SketchObject", "Sketch018")
sketch19.AttachmentSupport = (doc.getObject("XY_Plane024"), [""])
sketch19.MapMode = "FlatFace"
sketch19.AttachmentOffset = App.Placement(App.Vector(0, 0, -54), App.Rotation())
sketch19.addGeometry(Part.Circle(App.Vector(-41, 0, 0), App.Vector(0, 0, 1), 1.5), False)
sketch19.addConstraint(Sketcher.Constraint("PointOnObject", 0, 3, -1))
sketch19.addConstraint(Sketcher.Constraint("Diameter", 0, 3.0))
sketch19.addConstraint(Sketcher.Constraint("DistanceX", 0, 3, -1, 1, 41.0))
sketch19.setExpression("Constraints[1]", "Params.sketch19_diameter")
pad19 = body25.newObject("PartDesign::Pad", "Pad018")
pad19.Profile = sketch19
pad19.setExpression("Length", "Params.pad19_length")
body26 = doc.addObject("PartDesign::Body", "Body025")

# Sketch on XY plane
sketch20 = body26.newObject("Sketcher::SketchObject", "Sketch019")
sketch20.AttachmentSupport = (doc.getObject("XY_Plane025"), [""])
sketch20.MapMode = "FlatFace"
sketch20.addGeometry(Part.Circle(App.Vector(0, 0, 0), App.Vector(0, 0, 1), 1.5), False)
sketch20.addConstraint(Sketcher.Constraint("Coincident", 0, 3, -1, 1))
sketch20.addConstraint(Sketcher.Constraint("Diameter", 0, 3.0))
sketch20.setExpression("Constraints[1]", "Params.sketch20_diameter")
pad20 = body26.newObject("PartDesign::Pad", "Pad019")
pad20.Profile = sketch20
pad20.setExpression("Length", "Params.pad20_length")
body27 = doc.addObject("PartDesign::Body", "Body026")
doc.recompute()

body26.Placement = App.Placement(App.Vector(-28.991378, -28.991378, -54), App.Rotation(App.Vector(0, 0, 1), 225))
boolean20 = body27.newObject("PartDesign::Boolean", "Boolean019")
boolean20.Type = "Fuse"
boolean20.addObjects([body26])
body28 = doc.addObject("PartDesign::Body", "Body027")

# Sketch on XY plane
sketch21 = body28.newObject("Sketcher::SketchObject", "Sketch020")
sketch21.AttachmentSupport = (doc.getObject("XY_Plane027"), [""])
sketch21.MapMode = "FlatFace"
sketch21.AttachmentOffset = App.Placement(App.Vector(0, 0, -54), App.Rotation())
sketch21.addGeometry(Part.Circle(App.Vector(0, -41, 0), App.Vector(0, 0, 1), 1.5), False)
sketch21.addConstraint(Sketcher.Constraint("PointOnObject", 0, 3, -2))
sketch21.addConstraint(Sketcher.Constraint("Diameter", 0, 3.0))
sketch21.addConstraint(Sketcher.Constraint("DistanceY", 0, 3, -1, 1, 41.0))
sketch21.setExpression("Constraints[1]", "Params.sketch21_diameter")
pad21 = body28.newObject("PartDesign::Pad", "Pad020")
pad21.Profile = sketch21
pad21.setExpression("Length", "Params.pad21_length")
body29 = doc.addObject("PartDesign::Body", "Body028")

# Sketch on XY plane
sketch22 = body29.newObject("Sketcher::SketchObject", "Sketch021")
sketch22.AttachmentSupport = (doc.getObject("XY_Plane028"), [""])
sketch22.MapMode = "FlatFace"
sketch22.addGeometry(Part.Circle(App.Vector(0, 0, 0), App.Vector(0, 0, 1), 1.5), False)
sketch22.addConstraint(Sketcher.Constraint("Coincident", 0, 3, -1, 1))
sketch22.addConstraint(Sketcher.Constraint("Diameter", 0, 3.0))
sketch22.setExpression("Constraints[1]", "Params.sketch22_diameter")
pad22 = body29.newObject("PartDesign::Pad", "Pad021")
pad22.Profile = sketch22
pad22.setExpression("Length", "Params.pad22_length")
body30 = doc.addObject("PartDesign::Body", "Body029")
doc.recompute()

body29.Placement = App.Placement(App.Vector(28.991378, -28.991378, -54), App.Rotation(App.Vector(0, 0, -1), 45))
boolean21 = body30.newObject("PartDesign::Boolean", "Boolean020")
boolean21.Type = "Fuse"
boolean21.addObjects([body29])
body31 = doc.addObject("PartDesign::Body", "Body030")

# Sketch on XY plane
sketch23 = body31.newObject("Sketcher::SketchObject", "Sketch022")
sketch23.AttachmentSupport = (doc.getObject("XY_Plane030"), [""])
sketch23.MapMode = "FlatFace"
sketch23.AttachmentOffset = App.Placement(App.Vector(0, 0, -54), App.Rotation())
sketch23.addGeometry(Part.Circle(App.Vector(41, 0, 0), App.Vector(0, 0, 1), 1.5), False)
sketch23.addConstraint(Sketcher.Constraint("PointOnObject", 0, 3, -1))
sketch23.addConstraint(Sketcher.Constraint("Diameter", 0, 3.0))
sketch23.addConstraint(Sketcher.Constraint("DistanceX", -1, 1, 0, 3, 41.0))
sketch23.setExpression("Constraints[1]", "Params.sketch23_diameter")
pad23 = body31.newObject("PartDesign::Pad", "Pad022")
pad23.Profile = sketch23
pad23.setExpression("Length", "Params.pad23_length")
body32 = doc.addObject("PartDesign::Body", "Body031")

# Sketch on XY plane
sketch24 = body32.newObject("Sketcher::SketchObject", "Sketch023")
sketch24.AttachmentSupport = (doc.getObject("XY_Plane031"), [""])
sketch24.MapMode = "FlatFace"
sketch24.addGeometry(Part.Circle(App.Vector(0, 0, 0), App.Vector(0, 0, 1), 1.5), False)
sketch24.addConstraint(Sketcher.Constraint("Coincident", 0, 3, -1, 1))
sketch24.addConstraint(Sketcher.Constraint("Diameter", 0, 3.0))
sketch24.setExpression("Constraints[1]", "Params.sketch24_diameter")
pad24 = body32.newObject("PartDesign::Pad", "Pad023")
pad24.Profile = sketch24
pad24.setExpression("Length", "Params.pad24_length")
body33 = doc.addObject("PartDesign::Body", "Body032")
body33.AllowCompound = True
doc.recompute()

body32.Placement = App.Placement(App.Vector(28.991378, 28.991378, -54), App.Rotation(App.Vector(0, 0, 1), 45))
boolean22 = body33.newObject("PartDesign::Boolean", "Boolean021")
boolean22.Type = "Fuse"
boolean22.addObjects([body32])
doc.recompute()

boolean23 = body33.newObject("PartDesign::Boolean", "Boolean022")
boolean23.Type = "Fuse"
boolean23.addObjects([body22])
doc.recompute()

boolean24 = body33.newObject("PartDesign::Boolean", "Boolean023")
boolean24.Type = "Fuse"
boolean24.addObjects([body24])
doc.recompute()

boolean25 = body33.newObject("PartDesign::Boolean", "Boolean024")
boolean25.Type = "Fuse"
boolean25.addObjects([body25])
doc.recompute()

boolean26 = body33.newObject("PartDesign::Boolean", "Boolean025")
boolean26.Type = "Fuse"
boolean26.addObjects([body27])
doc.recompute()

boolean27 = body33.newObject("PartDesign::Boolean", "Boolean026")
boolean27.Type = "Fuse"
boolean27.addObjects([body28])
doc.recompute()

boolean28 = body33.newObject("PartDesign::Boolean", "Boolean027")
boolean28.Type = "Fuse"
boolean28.addObjects([body30])
doc.recompute()

boolean29 = body33.newObject("PartDesign::Boolean", "Boolean028")
boolean29.Type = "Fuse"
boolean29.addObjects([body31])
body34 = doc.addObject("PartDesign::Body", "Body033")
body34.AllowCompound = True
doc.recompute()

body33.Placement = App.Placement(App.Vector(0, 0, 0), App.Rotation(App.Vector(0, 0, 1), 22.5))
boolean30 = body34.newObject("PartDesign::Boolean", "Boolean029")
boolean30.Type = "Fuse"
boolean30.addObjects([body33])
body35 = doc.addObject("PartDesign::Body", "Body034")

# Sketch on XY plane
sketch25 = body35.newObject("Sketcher::SketchObject", "Sketch024")
sketch25.AttachmentSupport = (doc.getObject("XY_Plane034"), [""])
sketch25.MapMode = "FlatFace"
sketch25.AttachmentOffset = App.Placement(App.Vector(0, 0, -8), App.Rotation())
sketch25.addGeometry(Part.Circle(App.Vector(0, 0, 0), App.Vector(0, 0, 1), 46), False)
sketch25.addGeometry(Part.Circle(App.Vector(0, 0, 0), App.Vector(0, 0, 1), 38), False)
sketch25.addConstraint(Sketcher.Constraint("Coincident", 0, 3, -1, 1))
sketch25.addConstraint(Sketcher.Constraint("Coincident", 1, 3, -1, 1))
sketch25.addConstraint(Sketcher.Constraint("Diameter", 0, 92.0))
sketch25.addConstraint(Sketcher.Constraint("Diameter", 1, 76.0))
sketch25.setExpression("Constraints[2]", "Params.sketch25_diameter")
sketch25.setExpression("Constraints[3]", "Params.sketch25_diameter2")
pad25 = body35.newObject("PartDesign::Pad", "Pad024")
pad25.Profile = sketch25
pad25.setExpression("Length", "Params.pad25_length")
doc.recompute()

boolean31 = body35.newObject("PartDesign::Boolean", "Boolean030")
boolean31.Type = "Cut"
boolean31.addObjects([body34])
doc.recompute()

boolean32 = body35.newObject("PartDesign::Boolean", "Boolean031")
boolean32.Type = "Cut"
boolean32.addObjects([body21])
doc.recompute()

boolean33 = body35.newObject("PartDesign::Boolean", "Boolean032")
boolean33.Type = "Cut"
boolean33.addObjects([body8])
doc.recompute()

boolean34 = body35.newObject("PartDesign::Boolean", "Boolean033")
boolean34.Type = "Cut"
boolean34.addObjects([body4])
body36 = doc.addObject("PartDesign::Body", "Body035")
doc.recompute()

body35.Placement = App.Placement(App.Vector(0, 0, 2), App.Rotation(App.Vector(0, 0, 1), 0))
boolean35 = body36.newObject("PartDesign::Boolean", "Boolean034")
boolean35.Type = "Fuse"
boolean35.addObjects([body35])

doc.recompute()
